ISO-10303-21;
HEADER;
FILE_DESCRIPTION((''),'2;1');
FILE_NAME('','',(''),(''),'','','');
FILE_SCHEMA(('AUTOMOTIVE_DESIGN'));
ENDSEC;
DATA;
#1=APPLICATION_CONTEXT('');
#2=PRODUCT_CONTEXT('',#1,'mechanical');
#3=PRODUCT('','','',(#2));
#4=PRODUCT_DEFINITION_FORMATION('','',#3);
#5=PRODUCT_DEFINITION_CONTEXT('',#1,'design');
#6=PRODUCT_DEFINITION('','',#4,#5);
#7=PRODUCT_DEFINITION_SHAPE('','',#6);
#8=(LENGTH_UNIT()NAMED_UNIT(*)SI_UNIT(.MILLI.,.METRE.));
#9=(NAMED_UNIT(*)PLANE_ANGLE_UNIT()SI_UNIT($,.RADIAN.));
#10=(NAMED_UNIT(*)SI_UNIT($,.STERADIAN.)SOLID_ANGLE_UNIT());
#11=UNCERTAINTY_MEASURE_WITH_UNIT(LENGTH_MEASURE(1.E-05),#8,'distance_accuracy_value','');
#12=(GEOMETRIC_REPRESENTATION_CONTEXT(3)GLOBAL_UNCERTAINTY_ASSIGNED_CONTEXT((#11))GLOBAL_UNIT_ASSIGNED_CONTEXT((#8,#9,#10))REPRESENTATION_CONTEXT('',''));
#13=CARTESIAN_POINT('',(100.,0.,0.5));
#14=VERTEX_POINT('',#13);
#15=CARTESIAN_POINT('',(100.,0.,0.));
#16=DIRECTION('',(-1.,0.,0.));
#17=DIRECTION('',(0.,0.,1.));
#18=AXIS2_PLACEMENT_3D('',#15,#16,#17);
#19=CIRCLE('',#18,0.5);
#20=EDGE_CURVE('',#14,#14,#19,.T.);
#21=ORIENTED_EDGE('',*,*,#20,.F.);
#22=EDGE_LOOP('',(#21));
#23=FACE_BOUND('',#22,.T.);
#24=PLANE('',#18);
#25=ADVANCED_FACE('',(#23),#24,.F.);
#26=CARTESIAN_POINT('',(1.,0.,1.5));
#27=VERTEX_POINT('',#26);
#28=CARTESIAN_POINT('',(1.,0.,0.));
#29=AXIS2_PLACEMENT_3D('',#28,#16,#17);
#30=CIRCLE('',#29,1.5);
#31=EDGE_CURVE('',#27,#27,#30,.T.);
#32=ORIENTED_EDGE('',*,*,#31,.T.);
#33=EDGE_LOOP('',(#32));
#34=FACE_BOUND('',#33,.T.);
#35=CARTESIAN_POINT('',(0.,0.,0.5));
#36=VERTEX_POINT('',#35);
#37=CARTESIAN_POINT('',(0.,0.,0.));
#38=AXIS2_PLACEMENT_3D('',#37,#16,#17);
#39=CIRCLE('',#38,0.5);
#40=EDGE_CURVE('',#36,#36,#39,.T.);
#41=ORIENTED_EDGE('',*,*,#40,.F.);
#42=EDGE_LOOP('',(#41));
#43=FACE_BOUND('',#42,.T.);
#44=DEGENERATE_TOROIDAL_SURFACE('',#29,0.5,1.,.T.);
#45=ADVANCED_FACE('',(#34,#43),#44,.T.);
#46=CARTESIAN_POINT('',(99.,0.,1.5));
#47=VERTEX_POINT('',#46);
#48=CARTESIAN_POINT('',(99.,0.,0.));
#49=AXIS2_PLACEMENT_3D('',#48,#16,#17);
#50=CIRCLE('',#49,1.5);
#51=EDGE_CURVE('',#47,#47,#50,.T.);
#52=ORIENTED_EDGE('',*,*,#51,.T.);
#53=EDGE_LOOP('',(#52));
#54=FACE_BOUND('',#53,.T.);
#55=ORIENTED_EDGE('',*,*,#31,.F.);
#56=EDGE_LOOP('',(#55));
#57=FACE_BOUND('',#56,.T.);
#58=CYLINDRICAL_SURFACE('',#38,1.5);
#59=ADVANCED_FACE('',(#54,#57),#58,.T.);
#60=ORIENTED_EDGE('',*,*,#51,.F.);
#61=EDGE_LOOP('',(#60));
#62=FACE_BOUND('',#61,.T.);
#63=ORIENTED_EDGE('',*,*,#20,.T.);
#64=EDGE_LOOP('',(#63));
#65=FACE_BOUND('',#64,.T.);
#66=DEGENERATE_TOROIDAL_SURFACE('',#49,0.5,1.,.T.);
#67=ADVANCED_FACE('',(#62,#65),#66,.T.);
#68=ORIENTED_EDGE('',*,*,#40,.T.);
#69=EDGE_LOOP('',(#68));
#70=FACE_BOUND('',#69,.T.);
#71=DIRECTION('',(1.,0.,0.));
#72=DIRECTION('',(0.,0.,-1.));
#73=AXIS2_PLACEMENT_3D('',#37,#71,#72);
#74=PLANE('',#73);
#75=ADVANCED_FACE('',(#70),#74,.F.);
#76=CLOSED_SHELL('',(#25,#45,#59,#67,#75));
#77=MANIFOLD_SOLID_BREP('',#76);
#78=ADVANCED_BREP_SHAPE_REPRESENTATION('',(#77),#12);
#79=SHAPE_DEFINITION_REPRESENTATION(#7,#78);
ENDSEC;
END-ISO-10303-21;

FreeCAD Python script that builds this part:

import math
import FreeCAD as App
import Part
import Sketcher

V = App.Vector

doc = App.newDocument("Part")
body = doc.addObject("PartDesign::Body", "Body")

# Sketch on XY plane
sketch1 = body.newObject("Sketcher::SketchObject", "Sketch")
sketch1.AttachmentSupport = (doc.getObject("XY_Plane"), [""])
sketch1.MapMode = "FlatFace"
sketch1.addGeometry(Part.LineSegment(V(0, 0, 0), V(100, 0, 0)), False)
sketch1.addGeometry(Part.LineSegment(V(100, 0, 0), V(100, 0.5, 0)), False)
sketch1.addGeometry(Part.ArcOfCircle(Part.Circle(V(99, 0.5, 0), V(0, 0, 1), 1), math.radians(0), math.radians(90)), False)
sketch1.addGeometry(Part.LineSegment(V(99, 1.5, 0), V(1, 1.5, 0)), False)
sketch1.addGeometry(Part.ArcOfCircle(Part.Circle(V(1, 0.5, 0), V(0, 0, 1), 1), math.radians(90), math.radians(180)), False)
sketch1.addGeometry(Part.LineSegment(V(0, 0.5, 0), V(0, 0, 0)), False)
sketch1.addConstraint(Sketcher.Constraint("Coincident", 0, 2, 1, 1))
sketch1.addConstraint(Sketcher.Constraint("Tangent", 1, 2, 2, 1))
sketch1.addConstraint(Sketcher.Constraint("Tangent", 2, 2, 3, 1))
sketch1.addConstraint(Sketcher.Constraint("Tangent", 3, 2, 4, 1))
sketch1.addConstraint(Sketcher.Constraint("Tangent", 4, 2, 5, 1))
sketch1.addConstraint(Sketcher.Constraint("Coincident", 5, 2, 0, 1))
sketch1.addConstraint(Sketcher.Constraint("Horizontal", 0))
sketch1.addConstraint(Sketcher.Constraint("Vertical", 1))
sketch1.addConstraint(Sketcher.Constraint("Horizontal", 3))
sketch1.addConstraint(Sketcher.Constraint("Vertical", 5))
sketch1.addConstraint(Sketcher.Constraint("Coincident", 5, 2, -1, 1))
sketch1.addConstraint(Sketcher.Constraint("Equal", 2, 4))
sketch1.addConstraint(Sketcher.Constraint("Radius", 2, 1.0))
sketch1.addConstraint(Sketcher.Constraint("DistanceX", 0, 1, 0, 2, 100.0))
sketch1.addConstraint(Sketcher.Constraint("DistanceY", 1, 1, 1, 2, 0.5))
revolution = body.newObject("PartDesign::Revolution", "Revolution")
revolution.Profile = sketch1
revolution.ReferenceAxis = (sketch1, ["H_Axis"])
revolution.Angle = 360

doc.recompute()
